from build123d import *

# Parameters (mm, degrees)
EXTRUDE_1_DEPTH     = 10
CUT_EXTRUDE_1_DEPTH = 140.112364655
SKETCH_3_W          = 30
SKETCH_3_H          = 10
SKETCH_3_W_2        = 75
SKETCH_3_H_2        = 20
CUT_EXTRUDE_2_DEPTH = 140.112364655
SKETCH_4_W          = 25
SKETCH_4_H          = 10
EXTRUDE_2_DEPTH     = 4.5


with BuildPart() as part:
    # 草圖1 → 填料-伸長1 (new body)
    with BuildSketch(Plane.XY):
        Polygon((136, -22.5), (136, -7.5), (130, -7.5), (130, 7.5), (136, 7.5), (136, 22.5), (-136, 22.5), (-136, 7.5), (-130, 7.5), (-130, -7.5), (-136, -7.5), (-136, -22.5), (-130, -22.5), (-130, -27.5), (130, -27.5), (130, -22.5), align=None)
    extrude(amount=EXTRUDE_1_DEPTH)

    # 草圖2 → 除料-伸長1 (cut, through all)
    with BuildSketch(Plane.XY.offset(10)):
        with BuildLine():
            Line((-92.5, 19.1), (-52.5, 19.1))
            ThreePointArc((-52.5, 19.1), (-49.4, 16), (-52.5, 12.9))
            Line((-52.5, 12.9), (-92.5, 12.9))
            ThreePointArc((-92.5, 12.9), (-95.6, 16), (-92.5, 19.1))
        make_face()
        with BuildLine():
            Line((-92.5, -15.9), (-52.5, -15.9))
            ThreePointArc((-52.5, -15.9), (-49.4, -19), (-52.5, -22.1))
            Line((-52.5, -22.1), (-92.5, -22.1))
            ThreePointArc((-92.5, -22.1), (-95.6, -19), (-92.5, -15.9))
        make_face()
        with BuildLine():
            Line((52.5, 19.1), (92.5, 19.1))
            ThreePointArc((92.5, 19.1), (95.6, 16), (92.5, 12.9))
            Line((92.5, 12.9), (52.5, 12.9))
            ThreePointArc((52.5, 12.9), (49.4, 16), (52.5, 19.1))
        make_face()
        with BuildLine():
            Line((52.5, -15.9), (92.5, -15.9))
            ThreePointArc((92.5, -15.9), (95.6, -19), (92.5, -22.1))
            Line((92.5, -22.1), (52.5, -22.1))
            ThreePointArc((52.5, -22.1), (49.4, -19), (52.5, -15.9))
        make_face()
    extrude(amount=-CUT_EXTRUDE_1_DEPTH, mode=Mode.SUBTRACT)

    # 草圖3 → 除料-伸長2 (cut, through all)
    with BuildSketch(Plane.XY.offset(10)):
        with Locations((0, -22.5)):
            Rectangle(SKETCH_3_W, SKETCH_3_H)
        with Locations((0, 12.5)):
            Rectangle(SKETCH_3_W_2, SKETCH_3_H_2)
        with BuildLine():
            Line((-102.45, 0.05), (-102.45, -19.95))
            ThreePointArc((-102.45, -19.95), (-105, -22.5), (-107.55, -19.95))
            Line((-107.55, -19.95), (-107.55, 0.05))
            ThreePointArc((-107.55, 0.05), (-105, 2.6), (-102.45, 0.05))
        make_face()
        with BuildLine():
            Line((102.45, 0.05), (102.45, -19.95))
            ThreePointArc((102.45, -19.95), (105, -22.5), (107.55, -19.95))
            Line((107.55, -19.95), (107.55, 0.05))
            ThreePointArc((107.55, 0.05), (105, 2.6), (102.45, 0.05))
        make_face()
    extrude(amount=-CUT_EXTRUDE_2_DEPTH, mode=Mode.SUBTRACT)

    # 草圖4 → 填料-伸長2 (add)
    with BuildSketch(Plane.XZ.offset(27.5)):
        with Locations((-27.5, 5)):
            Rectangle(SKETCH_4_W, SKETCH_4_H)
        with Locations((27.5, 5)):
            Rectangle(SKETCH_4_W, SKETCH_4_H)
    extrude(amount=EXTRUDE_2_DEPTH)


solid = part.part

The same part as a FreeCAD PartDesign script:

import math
import FreeCAD as App
import Part
import Sketcher
from FreeCAD import Vector


def add_polygon(sketch, points):
    """Adds a closed chain of lines whose ends are joined by coincident constraints."""
    first, n = sketch.GeometryCount, len(points)
    for a, b in zip(points, points[1:] + points[:1]):
        sketch.addGeometry(Part.LineSegment(App.Vector(*a, 0), App.Vector(*b, 0)), False)
    for i in range(n):
        sketch.addConstraint(Sketcher.Constraint("Coincident", first + i, 2, first + (i + 1) % n, 1))

doc = App.newDocument("Part")
body = doc.addObject("PartDesign::Body", "Body")

sketch1 = body.newObject("Sketcher::SketchObject", "Sketch")
sketch1.AttachmentSupport = (doc.getObject("XY_Plane"), [""])
sketch1.MapMode = "FlatFace"
add_polygon(sketch1, [(136, -22.5), (136, -7.5), (130, -7.5), (130, 7.5), (136, 7.5), (136, 22.5), (-136, 22.5), (-136, 7.5), (-130, 7.5), (-130, -7.5), (-136, -7.5), (-136, -22.5), (-130, -22.5), (-130, -27.5), (130, -27.5), (130, -22.5)])
sketch1.addConstraint([
    Sketcher.Constraint("Vertical", 0),
    Sketcher.Constraint("Horizontal", 1),
    Sketcher.Constraint("Vertical", 2),
    Sketcher.Constraint("Horizontal", 3),
    Sketcher.Constraint("Vertical", 4),
    Sketcher.Constraint("Horizontal", 5),
    Sketcher.Constraint("Vertical", 6),
    Sketcher.Constraint("Horizontal", 7),
    Sketcher.Constraint("Vertical", 8),
    Sketcher.Constraint("Horizontal", 9),
    Sketcher.Constraint("Vertical", 10),
    Sketcher.Constraint("Horizontal", 11),
    Sketcher.Constraint("Vertical", 12),
    Sketcher.Constraint("Horizontal", 13),
    Sketcher.Constraint("Vertical", 14),
    Sketcher.Constraint("Horizontal", 15),
    Sketcher.Constraint("Symmetric", 0, 2, 6, 2, -1, 1),
    Sketcher.Constraint("Symmetric", 2, 2, 8, 2, -1, 1),
    Sketcher.Constraint("Symmetric", 4, 2, 10, 2, -1, 1),
    Sketcher.Constraint("Symmetric", 3, 2, 6, 2, -2),
    Sketcher.Constraint("Symmetric", 11, 2, 14, 2, -2),
    Sketcher.Constraint("Vertical", 8, 2, 11, 2),
    Sketcher.Constraint("Equal", 0, 2),
    Sketcher.Constraint("DistanceX", 1, 2, 1, 1, 6.0),
    Sketcher.Constraint("DistanceX", 5, 2, 5, 1, 272.0),
    Sketcher.Constraint("DistanceY", 0, 1, 0, 2, 15.0),
    Sketcher.Constraint("DistanceY", 12, 2, 12, 1, 5.0),
])
pad1 = body.newObject("PartDesign::Pad", "Pad")
pad1.Profile = sketch1
pad1.Length = 10

sketch2 = body.newObject("Sketcher::SketchObject", "Sketch001")
sketch2.AttachmentSupport = (doc.getObject("XY_Plane"), [""])
sketch2.MapMode = "FlatFace"
sketch2.AttachmentOffset = App.Placement(Vector(0, 0, 10), App.Rotation())
sketch2.addGeometry([
    Part.LineSegment(Vector(-52.5, 19.1, 0), Vector(-92.5, 19.1, 0)),
    Part.ArcOfCircle(Part.Circle(Vector(-92.5, 16, 0), Vector(0, 0, 1), 3.1), math.radians(90), math.radians(270)),
    Part.LineSegment(Vector(-92.5, 12.9, 0), Vector(-52.5, 12.9, 0)),
    Part.ArcOfCircle(Part.Circle(Vector(-52.5, 16, 0), Vector(0, 0, 1), 3.1), math.radians(-90), math.radians(90)),
    Part.LineSegment(Vector(-52.5, -15.9, 0), Vector(-92.5, -15.9, 0)),
    Part.ArcOfCircle(Part.Circle(Vector(-92.5, -19, 0), Vector(0, 0, 1), 3.1), math.radians(90), math.radians(270)),
    Part.LineSegment(Vector(-92.5, -22.1, 0), Vector(-52.5, -22.1, 0)),
    Part.ArcOfCircle(Part.Circle(Vector(-52.5, -19, 0), Vector(0, 0, 1), 3.1), math.radians(-90), math.radians(90)),
    Part.LineSegment(Vector(92.5, 19.1, 0), Vector(52.5, 19.1, 0)),
    Part.ArcOfCircle(Part.Circle(Vector(52.5, 16, 0), Vector(0, 0, 1), 3.1), math.radians(90), math.radians(270)),
    Part.LineSegment(Vector(52.5, 12.9, 0), Vector(92.5, 12.9, 0)),
    Part.ArcOfCircle(Part.Circle(Vector(92.5, 16, 0), Vector(0, 0, 1), 3.1), math.radians(-90), math.radians(90)),
    Part.LineSegment(Vector(92.5, -15.9, 0), Vector(52.5, -15.9, 0)),
    Part.ArcOfCircle(Part.Circle(Vector(52.5, -19, 0), Vector(0, 0, 1), 3.1), math.radians(90), math.radians(270)),
    Part.LineSegment(Vector(52.5, -22.1, 0), Vector(92.5, -22.1, 0)),
    Part.ArcOfCircle(Part.Circle(Vector(92.5, -19, 0), Vector(0, 0, 1), 3.1), math.radians(-90), math.radians(90)),
], False)
sketch2.addConstraint([
    Sketcher.Constraint("Tangent", 0, 2, 1, 1),
    Sketcher.Constraint("Tangent", 1, 2, 2, 1),
    Sketcher.Constraint("Tangent", 2, 2, 3, 1),
    Sketcher.Constraint("Tangent", 3, 2, 0, 1),
    Sketcher.Constraint("Tangent", 4, 2, 5, 1),
    Sketcher.Constraint("Tangent", 5, 2, 6, 1),
    Sketcher.Constraint("Tangent", 6, 2, 7, 1),
    Sketcher.Constraint("Tangent", 7, 2, 4, 1),
    Sketcher.Constraint("Tangent", 8, 2, 9, 1),
    Sketcher.Constraint("Tangent", 9, 2, 10, 1),
    Sketcher.Constraint("Tangent", 10, 2, 11, 1),
    Sketcher.Constraint("Tangent", 11, 2, 8, 1),
    Sketcher.Constraint("Tangent", 12, 2, 13, 1),
    Sketcher.Constraint("Tangent", 13, 2, 14, 1),
    Sketcher.Constraint("Tangent", 14, 2, 15, 1),
    Sketcher.Constraint("Tangent", 15, 2, 12, 1),
    Sketcher.Constraint("Horizontal", 0),
    Sketcher.Constraint("Horizontal", 2),
    Sketcher.Constraint("Horizontal", 4),
    Sketcher.Constraint("Horizontal", 6),
    Sketcher.Constraint("Horizontal", 8),
    Sketcher.Constraint("Horizontal", 10),
    Sketcher.Constraint("Horizontal", 12),
    Sketcher.Constraint("Horizontal", 14),
    Sketcher.Constraint("Equal", 3, 5),
    Sketcher.Constraint("Equal", 7, 9),
    Sketcher.Constraint("Equal", 11, 13),
    Sketcher.Constraint("Symmetric", 3, 3, 9, 3, -2),
    Sketcher.Constraint("Symmetric", 7, 3, 13, 3, -2),
    Sketcher.Constraint("Vertical", 1, 3, 5, 3),
    Sketcher.Constraint("Vertical", 3, 3, 7, 3),
    Sketcher.Constraint("Vertical", 11, 3, 15, 3),
    Sketcher.Constraint("Equal", 6, 8),
    Sketcher.Constraint("Radius", 1, 3.1),
    Sketcher.Constraint("DistanceX", 0, 2, 0, 1, 40.0),
    Sketcher.Constraint("DistanceY", -1, 1, 1, 3, 16.0),
    Sketcher.Constraint("DistanceY", 5, 3, -1, 1, 19.0),
    Sketcher.Constraint("DistanceX", 3, 3, 9, 3, 105.0),
])
pocket1 = body.newObject("PartDesign::Pocket", "Pocket")
pocket1.Profile = sketch2
pocket1.Type = "ThroughAll"

sketch3 = body.newObject("Sketcher::SketchObject", "Sketch002")
sketch3.AttachmentSupport = (doc.getObject("XY_Plane"), [""])
sketch3.MapMode = "FlatFace"
sketch3.AttachmentOffset = App.Placement(Vector(0, 0, 10), App.Rotation())
add_polygon(sketch3, [(-15, -17.5), (-15, -27.5), (15, -27.5), (15, -17.5)])
add_polygon(sketch3, [(-37.5, 22.5), (-37.5, 2.5), (37.5, 2.5), (37.5, 22.5)])
sketch3.addGeometry(Part.LineSegment(Vector(-102.45, -19.95, 0), Vector(-102.45, 0.05, 0)), False)
sketch3.addGeometry(Part.ArcOfCircle(Part.Circle(Vector(-105, 0.05, 0), Vector(0, 0, 1), 2.55), math.radians(0), math.radians(180)), False)
sketch3.addGeometry(Part.LineSegment(Vector(-107.55, 0.05, 0), Vector(-107.55, -19.95, 0)), False)
sketch3.addGeometry(Part.ArcOfCircle(Part.Circle(Vector(-105, -19.95, 0), Vector(0, 0, 1), 2.55), math.radians(180), math.radians(360)), False)
sketch3.addGeometry(Part.LineSegment(Vector(102.45, 0.05, 0), Vector(102.45, -19.95, 0)), False)
sketch3.addGeometry(Part.ArcOfCircle(Part.Circle(Vector(105, -19.95, 0), Vector(0, 0, 1), 2.55), math.radians(180), math.radians(360)), False)
sketch3.addGeometry(Part.LineSegment(Vector(107.55, -19.95, 0), Vector(107.55, 0.05, 0)), False)
sketch3.addGeometry(Part.ArcOfCircle(Part.Circle(Vector(105, 0.05, 0), Vector(0, 0, 1), 2.55), math.radians(0), math.radians(180)), False)
sketch3.addConstraint([
    Sketcher.Constraint("Tangent", 8, 2, 9, 1),
    Sketcher.Constraint("Tangent", 9, 2, 10, 1),
    Sketcher.Constraint("Tangent", 10, 2, 11, 1),
    Sketcher.Constraint("Tangent", 11, 2, 8, 1),
    Sketcher.Constraint("Tangent", 12, 2, 13, 1),
    Sketcher.Constraint("Tangent", 13, 2, 14, 1),
    Sketcher.Constraint("Tangent", 14, 2, 15, 1),
    Sketcher.Constraint("Tangent", 15, 2, 12, 1),
    Sketcher.Constraint("Vertical", 0),
    Sketcher.Constraint("Horizontal", 1),
    Sketcher.Constraint("Vertical", 2),
    Sketcher.Constraint("Horizontal", 3),
    Sketcher.Constraint("Vertical", 4),
    Sketcher.Constraint("Horizontal", 5),
    Sketcher.Constraint("Vertical", 6),
    Sketcher.Constraint("Horizontal", 7),
    Sketcher.Constraint("Vertical", 8),
    Sketcher.Constraint("Vertical", 10),
    Sketcher.Constraint("Vertical", 12),
    Sketcher.Constraint("Vertical", 14),
    Sketcher.Constraint("Equal", 11, 13),
    Sketcher.Constraint("Symmetric", 11, 3, 13, 3, -2),
    Sketcher.Constraint("Horizontal", 9, 3, 15, 3),
    Sketcher.Constraint("Equal", 6, 8),
    Sketcher.Constraint("DistanceX", 1, 1, 1, 2, 30.0),
    Sketcher.Constraint("DistanceX", 5, 1, 5, 2, 75.0),
    Sketcher.Constraint("DistanceY", 0, 2, 0, 1, 10.0),
    Sketcher.Constraint("DistanceY", 4, 2, 4, 1, 20.0),
    Sketcher.Constraint("Radius", 9, 2.55),
    Sketcher.Constraint("DistanceX", 9, 3, -1, 1, 105.0),
    Sketcher.Constraint("DistanceX", 0, 2, -1, 1, 15.0),
    Sketcher.Constraint("DistanceY", 3, 2, 4, 2, 20.0),
    Sketcher.Constraint("DistanceY", 0, 2, -1, 1, 27.5),
    Sketcher.Constraint("DistanceX", 4, 2, -1, 1, 37.5),
    Sketcher.Constraint("DistanceY", -1, 1, 9, 3, 0.05),
])
pocket2 = body.newObject("PartDesign::Pocket", "Pocket001")
pocket2.Profile = sketch3
pocket2.Type = "ThroughAll"

sketch4 = body.newObject("Sketcher::SketchObject", "Sketch003")
sketch4.AttachmentSupport = (doc.getObject("XZ_Plane"), [""])
sketch4.MapMode = "FlatFace"
sketch4.AttachmentOffset = App.Placement(Vector(0, 0, 27.5), App.Rotation())
add_polygon(sketch4, [(-40, 10), (-40, 0), (-15, 0), (-15, 10)])
add_polygon(sketch4, [(15, 10), (15, 0), (40, 0), (40, 10)])
sketch4.addConstraint([
    Sketcher.Constraint("Vertical", 0),
    Sketcher.Constraint("Horizontal", 1),
    Sketcher.Constraint("Vertical", 2),
    Sketcher.Constraint("Horizontal", 3),
    Sketcher.Constraint("Vertical", 4),
    Sketcher.Constraint("Horizontal", 5),
    Sketcher.Constraint("Vertical", 6),
    Sketcher.Constraint("Horizontal", 7),
    Sketcher.Constraint("Symmetric", 1, 2, 4, 2, -1, 1),
    Sketcher.Constraint("Symmetric", 0, 2, 5, 2, -2),
    Sketcher.Constraint("Horizontal", 3, 2, 6, 2),
    Sketcher.Constraint("DistanceX", 1, 1, 1, 2, 25.0),
    Sketcher.Constraint("DistanceY", 0, 2, 0, 1, 10.0),
    Sketcher.Constraint("DistanceX", 0, 2, -1, 1, 40.0),
])
pad2 = body.newObject("PartDesign::Pad", "Pad001")
pad2.Profile = sketch4
pad2.Length = 4.5

doc.recompute()
